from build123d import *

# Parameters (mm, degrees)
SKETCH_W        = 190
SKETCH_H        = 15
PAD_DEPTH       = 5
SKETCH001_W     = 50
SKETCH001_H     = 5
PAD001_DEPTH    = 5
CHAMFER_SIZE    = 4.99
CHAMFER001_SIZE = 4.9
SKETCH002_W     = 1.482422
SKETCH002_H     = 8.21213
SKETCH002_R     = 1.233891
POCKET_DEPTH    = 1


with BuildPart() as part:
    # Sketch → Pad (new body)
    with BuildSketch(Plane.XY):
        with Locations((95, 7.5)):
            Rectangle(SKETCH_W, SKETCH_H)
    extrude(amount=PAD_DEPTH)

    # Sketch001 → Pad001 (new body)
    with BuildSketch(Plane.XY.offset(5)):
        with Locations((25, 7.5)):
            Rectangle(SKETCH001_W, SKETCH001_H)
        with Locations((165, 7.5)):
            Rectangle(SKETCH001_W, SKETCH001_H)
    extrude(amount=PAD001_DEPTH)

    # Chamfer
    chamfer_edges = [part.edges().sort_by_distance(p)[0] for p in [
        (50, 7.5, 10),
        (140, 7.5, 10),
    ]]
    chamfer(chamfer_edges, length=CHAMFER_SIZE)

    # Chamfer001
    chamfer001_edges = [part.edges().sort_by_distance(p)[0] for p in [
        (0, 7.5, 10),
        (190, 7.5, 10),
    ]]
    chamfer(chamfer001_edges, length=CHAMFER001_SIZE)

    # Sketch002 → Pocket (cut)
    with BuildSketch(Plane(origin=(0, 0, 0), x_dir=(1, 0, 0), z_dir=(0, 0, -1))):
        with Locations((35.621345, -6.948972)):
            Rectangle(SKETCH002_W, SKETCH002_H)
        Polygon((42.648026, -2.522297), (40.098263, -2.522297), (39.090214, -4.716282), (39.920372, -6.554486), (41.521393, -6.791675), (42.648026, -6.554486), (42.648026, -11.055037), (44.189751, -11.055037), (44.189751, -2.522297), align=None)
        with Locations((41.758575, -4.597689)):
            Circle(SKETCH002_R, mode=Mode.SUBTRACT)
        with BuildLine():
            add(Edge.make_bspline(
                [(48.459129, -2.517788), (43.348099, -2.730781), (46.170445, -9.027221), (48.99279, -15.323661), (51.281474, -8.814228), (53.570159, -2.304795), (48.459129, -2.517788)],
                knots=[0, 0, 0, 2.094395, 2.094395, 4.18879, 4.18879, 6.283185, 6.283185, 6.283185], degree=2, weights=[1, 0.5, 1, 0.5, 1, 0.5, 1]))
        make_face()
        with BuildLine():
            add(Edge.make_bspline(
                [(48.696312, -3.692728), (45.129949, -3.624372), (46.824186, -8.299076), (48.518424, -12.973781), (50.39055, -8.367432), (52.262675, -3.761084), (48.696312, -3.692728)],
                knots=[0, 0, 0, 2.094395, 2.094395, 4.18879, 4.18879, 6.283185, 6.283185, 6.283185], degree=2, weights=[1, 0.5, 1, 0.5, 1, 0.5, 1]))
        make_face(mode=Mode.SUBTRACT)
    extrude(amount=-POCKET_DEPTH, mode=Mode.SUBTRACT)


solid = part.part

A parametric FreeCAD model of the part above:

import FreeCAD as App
import Part
import Sketcher
from FreeCAD import Vector
Q = App.Units.Quantity


def edges_at(feature, points):
    """Names of the edges that pass closest to the given points."""
    edges = feature.Shape.Edges
    near = lambda p: min(range(len(edges)), key=lambda i: edges[i].distToShape(Part.Vertex(*p))[0])
    return sorted({f"Edge{near(p) + 1}" for p in points})


def add_polygon(sketch, points):
    """Adds a closed chain of lines whose ends are joined by coincident constraints."""
    first, n = sketch.GeometryCount, len(points)
    for a, b in zip(points, points[1:] + points[:1]):
        sketch.addGeometry(Part.LineSegment(App.Vector(*a, 0), App.Vector(*b, 0)), False)
    for i in range(n):
        sketch.addConstraint(Sketcher.Constraint("Coincident", first + i, 2, first + (i + 1) % n, 1))

doc = App.newDocument("Part")
body = doc.addObject("PartDesign::Body", "Body")

# Sketch on XY plane
sketch1 = body.newObject("Sketcher::SketchObject", "Sketch")
sketch1.AttachmentSupport = (doc.getObject("XY_Plane"), [""])
sketch1.MapMode = "FlatFace"
add_polygon(sketch1, [(0, 15), (0, 0), (190, 0), (190, 15)])  # lines 0-3
sketch1.addConstraint([
    Sketcher.Constraint("Vertical", 0),
    Sketcher.Constraint("Horizontal", 1),
    Sketcher.Constraint("Vertical", 2),
    Sketcher.Constraint("Horizontal", 3),
    Sketcher.Constraint("Coincident", 0, 2, -1, 1),
    Sketcher.Constraint("DistanceX", 1, 1, 1, 2, Q("190 mm")),
    Sketcher.Constraint("DistanceY", 0, 2, 0, 1, Q("15 mm")),
])
pad1 = body.newObject("PartDesign::Pad", "Pad")
pad1.Profile = sketch1
pad1.Length = 5

# Sketch on XY plane
sketch2 = body.newObject("Sketcher::SketchObject", "Sketch001")
sketch2.AttachmentSupport = (doc.getObject("XY_Plane"), [""])
sketch2.MapMode = "FlatFace"
sketch2.AttachmentOffset = App.Placement(Vector(0, 0, 5), App.Rotation())
add_polygon(sketch2, [(0, 10), (0, 5), (50, 5), (50, 10)])  # lines 0-3
add_polygon(sketch2, [(140, 10), (140, 5), (190, 5), (190, 10)])  # lines 4-7
sketch2.addConstraint([
    Sketcher.Constraint("Vertical", 0),
    Sketcher.Constraint("Horizontal", 1),
    Sketcher.Constraint("Vertical", 2),
    Sketcher.Constraint("Horizontal", 3),
    Sketcher.Constraint("Vertical", 4),
    Sketcher.Constraint("Horizontal", 5),
    Sketcher.Constraint("Vertical", 6),
    Sketcher.Constraint("Horizontal", 7),
    Sketcher.Constraint("PointOnObject", 0, 2, -2),
    Sketcher.Constraint("Horizontal", 1, 2, 4, 2),
    Sketcher.Constraint("Horizontal", 3, 2, 6, 2),
    Sketcher.Constraint("Equal", 3, 5),
    Sketcher.Constraint("DistanceX", 1, 1, 1, 2, Q("50 mm")),
    Sketcher.Constraint("DistanceY", 0, 2, 0, 1, Q("5 mm")),
    Sketcher.Constraint("DistanceY", -1, 1, 0, 2, Q("5 mm")),
    Sketcher.Constraint("DistanceX", -1, 1, 4, 2, Q("140 mm")),
])
pad2 = body.newObject("PartDesign::Pad", "Pad001")
pad2.Profile = sketch2
pad2.Length = 5
doc.recompute()

chamfer = body.newObject("PartDesign::Chamfer", "Chamfer")
chamfer.Base = (pad2, edges_at(pad2, [(50, 7.5, 10), (140, 7.5, 10)]))
chamfer.Size = 4.99
doc.recompute()

chamfer2 = body.newObject("PartDesign::Chamfer", "Chamfer001")
chamfer2.Base = (chamfer, edges_at(chamfer, [(0, 7.5, 10), (190, 7.5, 10)]))
chamfer2.Size = 4.9

# Sketch on XY plane
sketch3 = body.newObject("Sketcher::SketchObject", "Sketch002")
sketch3.AttachmentSupport = (doc.getObject("XY_Plane"), [""])
sketch3.MapMode = "FlatFace"
add_polygon(sketch3, [(34.880134, 2.842907), (34.880134, 11.055037), (36.362556, 11.055037), (36.362556, 2.842907)])  # lines 0-3
add_polygon(sketch3, [(40.098263, 2.522297), (39.090214, 4.716282), (39.920372, 6.554486), (41.521393, 6.791675), (42.648026, 6.554486), (42.648026, 11.055037), (44.189751, 11.055037), (44.189751, 2.522297)])  # lines 4-11
sketch3.addGeometry(Part.Circle(Vector(41.758575, 4.597689, 0), Vector(0, 0, 1), 1.233891), False)  # 12
sketch3.addGeometry(Part.BSplineCurve([Vector(48.459129, 2.517788, 0), Vector(43.348099, 2.730781, 0), Vector(46.170445, 9.027221, 0), Vector(48.99279, 15.323661, 0), Vector(51.281474, 8.814228, 0), Vector(53.570159, 2.304795, 0), Vector(48.459129, 2.517788, 0)], [3, 2, 2, 3], [0, 2.094395, 4.18879, 6.283185], False, 2, [1, 0.5, 1, 0.5, 1, 0.5, 1], False), False)  # 13
sketch3.addGeometry(Part.BSplineCurve([Vector(48.696312, 3.692728, 0), Vector(45.129949, 3.624372, 0), Vector(46.824186, 8.299076, 0), Vector(48.518424, 12.973781, 0), Vector(50.39055, 8.367432, 0), Vector(52.262675, 3.761084, 0), Vector(48.696312, 3.692728, 0)], [3, 2, 2, 3], [0, 2.094395, 4.18879, 6.283185], False, 2, [1, 0.5, 1, 0.5, 1, 0.5, 1], False), False)  # 14
sketch3.addConstraint([
    Sketcher.Constraint("Block", 13),
    Sketcher.Constraint("Block", 14),
    Sketcher.Constraint("Vertical", 0),
    Sketcher.Constraint("Horizontal", 1),
    Sketcher.Constraint("Vertical", 2),
    Sketcher.Constraint("Horizontal", 3),
    Sketcher.Constraint("Vertical", 8),
    Sketcher.Constraint("Horizontal", 9),
    Sketcher.Constraint("Vertical", 10),
    Sketcher.Constraint("Horizontal", 11),
    Sketcher.Constraint("Horizontal", 5, 2, 7, 2),
    Sketcher.Constraint("Horizontal", 1, 2, 8, 2),
    Sketcher.Constraint("Diameter", 12, Q("2.467782 mm")),
    Sketcher.Constraint("DistanceX", 1, 1, 1, 2, Q("1.482422 mm")),
    Sketcher.Constraint("DistanceY", 0, 1, 0, 2, Q("8.21213 mm")),
    Sketcher.Constraint("DistanceY", 8, 1, 8, 2, Q("4.500551 mm")),
    Sketcher.Constraint("DistanceY", 10, 2, 10, 1, Q("8.53274 mm")),
    Sketcher.Constraint("Distance", 7, Q("1.15133 mm")),
    Sketcher.Constraint("DistanceX", 9, 1, 9, 2, Q("1.541725 mm")),
    Sketcher.Constraint("DistanceX", 11, 2, 11, 1, Q("4.091488 mm")),
    Sketcher.Constraint("DistanceY", -1, 1, 12, 3, Q("4.597689 mm")),
    Sketcher.Constraint("DistanceY", -1, 1, 4, 2, Q("4.716282 mm")),
    Sketcher.Constraint("DistanceX", -1, 1, 9, 2, Q("44.189751 mm")),
    Sketcher.Constraint("DistanceX", 0, 2, 12, 3, Q("6.878441 mm")),
    Sketcher.Constraint("DistanceY", 12, 3, 0, 2, Q("6.457348 mm")),
    Sketcher.Constraint("DistanceX", 4, 2, 12, 3, Q("2.668361 mm")),
    Sketcher.Constraint("DistanceX", 3, 2, 5, 2, Q("5.040238 mm")),
    Sketcher.Constraint("DistanceX", 5, 2, 6, 2, Q("1.601021 mm")),
    Sketcher.Constraint("DistanceY", 5, 2, 6, 2, Q("0.237189 mm")),
])
pocket1 = body.newObject("PartDesign::Pocket", "Pocket")
pocket1.Profile = sketch3
pocket1.Length = 1
pocket1.Reversed = True

doc.recompute()
